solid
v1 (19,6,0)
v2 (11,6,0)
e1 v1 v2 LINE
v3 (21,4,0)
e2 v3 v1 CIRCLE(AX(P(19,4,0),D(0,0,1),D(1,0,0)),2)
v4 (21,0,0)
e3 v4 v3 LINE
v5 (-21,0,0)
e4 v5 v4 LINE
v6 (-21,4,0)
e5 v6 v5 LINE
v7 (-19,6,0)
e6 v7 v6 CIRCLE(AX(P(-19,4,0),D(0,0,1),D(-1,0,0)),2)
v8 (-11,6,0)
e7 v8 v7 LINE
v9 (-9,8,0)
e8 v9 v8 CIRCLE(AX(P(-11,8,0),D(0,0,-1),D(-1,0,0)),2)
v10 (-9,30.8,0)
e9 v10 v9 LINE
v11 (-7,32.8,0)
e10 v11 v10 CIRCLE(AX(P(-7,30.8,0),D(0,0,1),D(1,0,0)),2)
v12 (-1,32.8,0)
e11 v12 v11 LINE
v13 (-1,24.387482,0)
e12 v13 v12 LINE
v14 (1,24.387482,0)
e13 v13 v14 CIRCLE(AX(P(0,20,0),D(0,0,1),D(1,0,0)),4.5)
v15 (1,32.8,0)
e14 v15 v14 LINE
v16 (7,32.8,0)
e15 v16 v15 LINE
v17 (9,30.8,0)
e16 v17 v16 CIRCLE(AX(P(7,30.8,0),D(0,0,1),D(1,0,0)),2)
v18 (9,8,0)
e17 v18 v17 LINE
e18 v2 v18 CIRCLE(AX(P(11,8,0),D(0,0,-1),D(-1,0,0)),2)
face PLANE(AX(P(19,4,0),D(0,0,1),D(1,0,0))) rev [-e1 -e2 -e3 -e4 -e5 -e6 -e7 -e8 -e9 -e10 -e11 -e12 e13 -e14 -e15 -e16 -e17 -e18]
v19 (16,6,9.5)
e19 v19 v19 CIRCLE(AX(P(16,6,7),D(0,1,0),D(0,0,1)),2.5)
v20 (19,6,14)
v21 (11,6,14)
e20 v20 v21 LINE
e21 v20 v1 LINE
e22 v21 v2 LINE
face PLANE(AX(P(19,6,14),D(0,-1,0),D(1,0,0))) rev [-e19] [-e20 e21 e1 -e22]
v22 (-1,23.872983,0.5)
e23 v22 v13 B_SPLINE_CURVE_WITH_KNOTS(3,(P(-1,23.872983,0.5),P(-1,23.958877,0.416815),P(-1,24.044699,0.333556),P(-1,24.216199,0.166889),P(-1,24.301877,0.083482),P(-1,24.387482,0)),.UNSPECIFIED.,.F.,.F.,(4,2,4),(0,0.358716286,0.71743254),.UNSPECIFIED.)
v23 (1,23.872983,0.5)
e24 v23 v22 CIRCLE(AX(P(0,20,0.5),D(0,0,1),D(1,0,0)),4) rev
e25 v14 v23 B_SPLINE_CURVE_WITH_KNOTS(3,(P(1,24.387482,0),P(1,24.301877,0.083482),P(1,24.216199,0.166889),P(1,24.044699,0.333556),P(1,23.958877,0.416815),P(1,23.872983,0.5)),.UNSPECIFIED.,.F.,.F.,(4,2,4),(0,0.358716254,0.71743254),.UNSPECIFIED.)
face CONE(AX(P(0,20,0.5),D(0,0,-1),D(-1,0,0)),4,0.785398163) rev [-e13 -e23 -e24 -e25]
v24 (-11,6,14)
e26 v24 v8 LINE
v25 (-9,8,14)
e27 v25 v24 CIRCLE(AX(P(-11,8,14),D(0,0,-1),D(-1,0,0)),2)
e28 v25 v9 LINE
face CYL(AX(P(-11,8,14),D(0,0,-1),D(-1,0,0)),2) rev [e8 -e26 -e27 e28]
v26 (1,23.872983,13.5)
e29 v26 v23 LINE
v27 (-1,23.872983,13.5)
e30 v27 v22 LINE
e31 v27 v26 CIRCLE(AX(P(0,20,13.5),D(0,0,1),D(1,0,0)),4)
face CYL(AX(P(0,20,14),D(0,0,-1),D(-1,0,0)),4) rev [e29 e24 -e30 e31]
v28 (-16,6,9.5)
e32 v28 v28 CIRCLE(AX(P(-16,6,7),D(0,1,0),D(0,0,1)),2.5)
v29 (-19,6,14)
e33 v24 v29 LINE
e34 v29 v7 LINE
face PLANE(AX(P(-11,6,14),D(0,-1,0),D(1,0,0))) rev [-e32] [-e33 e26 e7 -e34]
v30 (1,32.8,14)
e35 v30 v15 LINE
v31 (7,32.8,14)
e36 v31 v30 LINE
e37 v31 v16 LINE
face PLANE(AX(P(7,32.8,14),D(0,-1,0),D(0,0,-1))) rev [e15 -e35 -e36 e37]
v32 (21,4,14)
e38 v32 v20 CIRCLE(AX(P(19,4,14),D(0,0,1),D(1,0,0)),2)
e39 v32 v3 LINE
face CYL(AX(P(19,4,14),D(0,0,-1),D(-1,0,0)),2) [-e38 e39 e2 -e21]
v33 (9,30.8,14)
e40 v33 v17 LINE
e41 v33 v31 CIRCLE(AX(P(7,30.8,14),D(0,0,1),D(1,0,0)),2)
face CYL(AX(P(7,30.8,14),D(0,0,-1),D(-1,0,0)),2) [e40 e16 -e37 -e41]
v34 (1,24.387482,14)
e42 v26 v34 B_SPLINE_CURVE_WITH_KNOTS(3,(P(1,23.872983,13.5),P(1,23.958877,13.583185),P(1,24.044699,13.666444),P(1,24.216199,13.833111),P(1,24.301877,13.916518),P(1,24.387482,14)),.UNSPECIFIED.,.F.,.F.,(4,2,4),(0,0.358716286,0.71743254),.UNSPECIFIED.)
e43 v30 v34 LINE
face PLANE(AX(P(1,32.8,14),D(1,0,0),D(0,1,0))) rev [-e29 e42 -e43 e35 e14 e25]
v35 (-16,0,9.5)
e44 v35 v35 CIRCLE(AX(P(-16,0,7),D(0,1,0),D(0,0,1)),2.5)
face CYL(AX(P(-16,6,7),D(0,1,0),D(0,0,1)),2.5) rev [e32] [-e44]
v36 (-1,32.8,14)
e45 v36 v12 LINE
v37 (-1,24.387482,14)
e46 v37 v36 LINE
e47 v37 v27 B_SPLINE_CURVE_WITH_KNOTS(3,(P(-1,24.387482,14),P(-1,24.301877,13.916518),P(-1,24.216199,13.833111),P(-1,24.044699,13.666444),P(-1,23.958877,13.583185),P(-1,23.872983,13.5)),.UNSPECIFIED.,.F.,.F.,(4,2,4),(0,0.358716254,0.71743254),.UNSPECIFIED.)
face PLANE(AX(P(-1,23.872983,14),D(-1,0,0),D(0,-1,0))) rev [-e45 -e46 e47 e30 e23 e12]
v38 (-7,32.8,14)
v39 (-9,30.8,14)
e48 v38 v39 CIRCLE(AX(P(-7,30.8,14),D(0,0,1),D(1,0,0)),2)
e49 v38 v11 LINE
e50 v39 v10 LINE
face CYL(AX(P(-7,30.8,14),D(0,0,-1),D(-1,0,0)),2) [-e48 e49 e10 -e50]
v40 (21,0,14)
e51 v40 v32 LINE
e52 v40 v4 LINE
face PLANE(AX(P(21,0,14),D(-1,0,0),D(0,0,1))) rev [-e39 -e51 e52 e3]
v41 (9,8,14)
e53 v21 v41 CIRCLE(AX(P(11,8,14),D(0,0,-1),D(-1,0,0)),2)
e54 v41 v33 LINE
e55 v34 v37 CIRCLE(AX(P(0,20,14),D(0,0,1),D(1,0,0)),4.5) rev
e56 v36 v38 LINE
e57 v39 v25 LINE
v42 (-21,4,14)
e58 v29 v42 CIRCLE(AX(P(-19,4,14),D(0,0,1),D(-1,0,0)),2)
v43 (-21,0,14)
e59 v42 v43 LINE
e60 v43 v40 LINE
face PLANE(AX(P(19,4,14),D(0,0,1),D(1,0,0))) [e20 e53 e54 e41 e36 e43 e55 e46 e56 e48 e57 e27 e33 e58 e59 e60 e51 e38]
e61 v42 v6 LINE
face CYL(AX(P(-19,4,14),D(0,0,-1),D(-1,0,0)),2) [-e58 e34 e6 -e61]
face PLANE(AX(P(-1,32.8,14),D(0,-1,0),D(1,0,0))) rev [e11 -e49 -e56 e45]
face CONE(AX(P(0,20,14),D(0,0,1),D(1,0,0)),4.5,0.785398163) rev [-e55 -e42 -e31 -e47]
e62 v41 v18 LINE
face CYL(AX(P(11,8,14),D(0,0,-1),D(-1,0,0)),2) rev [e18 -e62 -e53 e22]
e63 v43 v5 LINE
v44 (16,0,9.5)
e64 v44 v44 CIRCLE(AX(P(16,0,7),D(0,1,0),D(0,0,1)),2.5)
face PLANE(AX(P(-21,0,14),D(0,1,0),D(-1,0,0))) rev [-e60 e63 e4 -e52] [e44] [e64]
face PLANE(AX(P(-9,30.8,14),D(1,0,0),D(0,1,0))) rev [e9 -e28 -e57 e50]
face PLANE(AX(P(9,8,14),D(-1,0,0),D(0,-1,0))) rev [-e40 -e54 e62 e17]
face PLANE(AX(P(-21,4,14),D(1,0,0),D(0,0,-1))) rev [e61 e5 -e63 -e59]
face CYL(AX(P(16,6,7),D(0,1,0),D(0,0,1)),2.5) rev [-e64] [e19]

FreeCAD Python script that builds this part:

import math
import FreeCAD as App
import Part
import Sketcher
Q = App.Units.Quantity


def edges_at(feature, points):
    """Names of the edges that pass closest to the given points."""
    edges = feature.Shape.Edges
    near = lambda p: min(range(len(edges)), key=lambda i: edges[i].distToShape(Part.Vertex(*p))[0])
    return sorted({f"Edge{near(p) + 1}" for p in points})

doc = App.newDocument("Part")
body = doc.addObject("PartDesign::Body", "Body")

sketch1 = body.newObject("Sketcher::SketchObject", "Sketch")
sketch1.AttachmentSupport = (doc.getObject("XY_Plane"), [""])
sketch1.MapMode = "FlatFace"
sketch1.addGeometry([
    Part.LineSegment(App.Vector(-21, 4, 0), App.Vector(-21, 0, 0)),
    Part.LineSegment(App.Vector(-21, 0, 0), App.Vector(21, 0, 0)),
    Part.LineSegment(App.Vector(21, 0, 0), App.Vector(21, 4, 0)),
    Part.ArcOfCircle(Part.Circle(App.Vector(19, 4, 0), App.Vector(0, 0, 1), 2), math.radians(0), math.radians(90)),
    Part.LineSegment(App.Vector(19, 6, 0), App.Vector(11, 6, 0)),
    Part.ArcOfCircle(Part.Circle(App.Vector(11, 8, 0), App.Vector(0, 0, 1), 2), math.radians(-180), math.radians(-90)),
    Part.LineSegment(App.Vector(9, 8, 0), App.Vector(9, 30.8, 0)),
    Part.ArcOfCircle(Part.Circle(App.Vector(7, 30.8, 0), App.Vector(0, 0, 1), 2), math.radians(0), math.radians(90)),
    Part.LineSegment(App.Vector(7, 32.8, 0), App.Vector(1, 32.8, 0)),
    Part.LineSegment(App.Vector(1, 32.8, 0), App.Vector(1, 23.9, 0)),
    Part.ArcOfCircle(Part.Circle(App.Vector(0, 20, 0), App.Vector(0, 0, 1), 4), math.radians(104), math.radians(436)),
    Part.LineSegment(App.Vector(-1, 23.9, 0), App.Vector(-1, 32.8, 0)),
    Part.LineSegment(App.Vector(-1, 32.8, 0), App.Vector(-7, 32.8, 0)),
    Part.ArcOfCircle(Part.Circle(App.Vector(-7, 30.8, 0), App.Vector(0, 0, 1), 2), math.radians(90), math.radians(180)),
    Part.LineSegment(App.Vector(-9, 30.8, 0), App.Vector(-9, 8, 0)),
    Part.ArcOfCircle(Part.Circle(App.Vector(-11, 8, 0), App.Vector(0, 0, 1), 2), math.radians(-90), math.radians(0)),
    Part.LineSegment(App.Vector(-11, 6, 0), App.Vector(-19, 6, 0)),
    Part.ArcOfCircle(Part.Circle(App.Vector(-19, 4, 0), App.Vector(0, 0, 1), 2), math.radians(90), math.radians(180)),
], False)
sketch1.addConstraint([
    Sketcher.Constraint("Coincident", 0, 2, 1, 1),
    Sketcher.Constraint("Coincident", 1, 2, 2, 1),
    Sketcher.Constraint("Tangent", 2, 2, 3, 1),
    Sketcher.Constraint("Tangent", 3, 2, 4, 1),
    Sketcher.Constraint("Tangent", 4, 2, 5, 2),
    Sketcher.Constraint("Tangent", 5, 1, 6, 1),
    Sketcher.Constraint("Tangent", 6, 2, 7, 1),
    Sketcher.Constraint("Tangent", 7, 2, 8, 1),
    Sketcher.Constraint("Coincident", 8, 2, 9, 1),
    Sketcher.Constraint("Coincident", 9, 2, 10, 2),
    Sketcher.Constraint("Coincident", 10, 1, 11, 1),
    Sketcher.Constraint("Coincident", 11, 2, 12, 1),
    Sketcher.Constraint("Tangent", 12, 2, 13, 1),
    Sketcher.Constraint("Tangent", 13, 2, 14, 1),
    Sketcher.Constraint("Tangent", 14, 2, 15, 2),
    Sketcher.Constraint("Tangent", 15, 1, 16, 1),
    Sketcher.Constraint("Tangent", 16, 2, 17, 1),
    Sketcher.Constraint("Tangent", 17, 2, 0, 1),
    Sketcher.Constraint("Vertical", 0),
    Sketcher.Constraint("Horizontal", 1),
    Sketcher.Constraint("Vertical", 2),
    Sketcher.Constraint("Horizontal", 4),
    Sketcher.Constraint("Vertical", 6),
    Sketcher.Constraint("Horizontal", 8),
    Sketcher.Constraint("Vertical", 9),
    Sketcher.Constraint("Vertical", 11),
    Sketcher.Constraint("Horizontal", 12),
    Sketcher.Constraint("Vertical", 14),
    Sketcher.Constraint("Horizontal", 16),
    Sketcher.Constraint("Equal", 3, 5),
    Sketcher.Constraint("Equal", 5, 7),
    Sketcher.Constraint("Equal", 7, 13),
    Sketcher.Constraint("Equal", 13, 15),
    Sketcher.Constraint("Equal", 15, 17),
    Sketcher.Constraint("Symmetric", 0, 2, 1, 2, -1, 1),
    Sketcher.Constraint("Symmetric", 7, 3, 13, 3, -2),
    Sketcher.Constraint("Symmetric", 9, 2, 10, 1, -2),
    Sketcher.Constraint("Horizontal", 5, 3, 15, 3),
    Sketcher.Constraint("Radius", 3, Q("2 mm")),
    Sketcher.Constraint("Radius", 10, Q("4 mm")),
    Sketcher.Constraint("DistanceX", 1, 1, 1, 2, Q("42 mm")),
    Sketcher.Constraint("DistanceX", 4, 2, 4, 1, Q("8 mm")),
    Sketcher.Constraint("DistanceX", 8, 2, 8, 1, Q("6 mm")),
    Sketcher.Constraint("DistanceY", 0, 2, 0, 1, Q("4 mm")),
    Sketcher.Constraint("DistanceY", 6, 1, 6, 2, Q("22.8 mm")),
    Sketcher.Constraint("DistanceY", -1, 1, 10, 3, Q("20 mm")),
])
pad1 = body.newObject("PartDesign::Pad", "Pad")
pad1.Profile = sketch1
pad1.Length = 14
doc.recompute()

chamfer = body.newObject("PartDesign::Chamfer", "Chamfer")
chamfer.Base = (pad1, edges_at(pad1, [(0, 16, 0), (0, 16, 14)]))
chamfer.Size = 0.5

sketch2 = body.newObject("Sketcher::SketchObject", "Sketch001")
sketch2.AttachmentSupport = (doc.getObject("XZ_Plane"), [""])
sketch2.MapMode = "FlatFace"
sketch2.AttachmentOffset = App.Placement(App.Vector(0, 0, -6), App.Rotation())
sketch2.addGeometry([
    Part.Circle(App.Vector(-16, 7, 0), App.Vector(0, 0, 1), 2.5),
    Part.Circle(App.Vector(16, 7, 0), App.Vector(0, 0, 1), 2.5),
], False)
sketch2.addConstraint([
    Sketcher.Constraint("Equal", 0, 1),
    Sketcher.Constraint("Symmetric", 0, 3, 1, 3, -2),
    Sketcher.Constraint("Diameter", 0, Q("5 mm")),
    Sketcher.Constraint("DistanceX", 0, 3, -1, 1, Q("16 mm")),
    Sketcher.Constraint("DistanceY", -1, 1, 0, 3, Q("7 mm")),
])
doc.recompute()
hole = body.newObject("PartDesign::Hole", "Hole")
hole.Profile = sketch2
hole.ThreadType = "None"
hole.Diameter = 5
hole.DepthType = "ThroughAll"
hole.Reversed = True

doc.recompute()
